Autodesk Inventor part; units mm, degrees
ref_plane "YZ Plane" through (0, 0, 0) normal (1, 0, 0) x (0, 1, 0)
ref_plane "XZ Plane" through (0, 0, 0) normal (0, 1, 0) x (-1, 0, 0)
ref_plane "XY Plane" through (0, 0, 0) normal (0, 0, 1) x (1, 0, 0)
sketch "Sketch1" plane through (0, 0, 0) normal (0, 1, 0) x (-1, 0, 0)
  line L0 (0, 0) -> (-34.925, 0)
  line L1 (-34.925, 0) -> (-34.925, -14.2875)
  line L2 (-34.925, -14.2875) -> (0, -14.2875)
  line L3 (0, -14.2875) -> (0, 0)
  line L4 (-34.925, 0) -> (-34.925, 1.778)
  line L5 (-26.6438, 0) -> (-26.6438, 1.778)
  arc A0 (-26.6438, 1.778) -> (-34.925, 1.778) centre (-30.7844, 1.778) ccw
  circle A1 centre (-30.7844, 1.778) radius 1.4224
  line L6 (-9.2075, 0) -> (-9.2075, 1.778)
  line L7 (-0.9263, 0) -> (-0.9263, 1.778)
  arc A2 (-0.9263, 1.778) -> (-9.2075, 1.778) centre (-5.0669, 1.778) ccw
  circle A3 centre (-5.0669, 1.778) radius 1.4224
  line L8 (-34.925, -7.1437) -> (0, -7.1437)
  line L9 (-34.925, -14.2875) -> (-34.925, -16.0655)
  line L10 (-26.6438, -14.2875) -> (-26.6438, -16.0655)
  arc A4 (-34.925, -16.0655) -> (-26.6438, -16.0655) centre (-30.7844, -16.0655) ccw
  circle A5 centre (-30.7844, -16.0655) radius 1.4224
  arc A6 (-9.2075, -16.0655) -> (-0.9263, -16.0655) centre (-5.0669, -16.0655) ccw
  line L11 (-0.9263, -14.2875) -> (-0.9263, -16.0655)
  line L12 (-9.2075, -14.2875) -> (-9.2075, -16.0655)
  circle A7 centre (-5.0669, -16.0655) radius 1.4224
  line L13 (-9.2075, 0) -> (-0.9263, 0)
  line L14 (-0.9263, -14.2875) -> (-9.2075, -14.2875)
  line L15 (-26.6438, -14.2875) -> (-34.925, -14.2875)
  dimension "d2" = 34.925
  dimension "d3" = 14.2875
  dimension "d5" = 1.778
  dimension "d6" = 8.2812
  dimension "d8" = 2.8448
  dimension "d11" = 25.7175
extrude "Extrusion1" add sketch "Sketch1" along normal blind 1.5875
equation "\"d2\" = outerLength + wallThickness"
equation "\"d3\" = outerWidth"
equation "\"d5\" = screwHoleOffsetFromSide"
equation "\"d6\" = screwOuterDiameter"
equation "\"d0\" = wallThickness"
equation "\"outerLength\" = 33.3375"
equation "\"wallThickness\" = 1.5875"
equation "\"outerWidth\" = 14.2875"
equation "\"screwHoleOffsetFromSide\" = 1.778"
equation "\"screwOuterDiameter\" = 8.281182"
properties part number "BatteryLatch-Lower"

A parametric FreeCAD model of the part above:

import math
import FreeCAD as App
import Part
import Sketcher
from FreeCAD import Vector
Q = App.Units.Quantity

doc = App.newDocument("Part")
body = doc.addObject("PartDesign::Body", "Body")

# Sketch on XZ plane
sketch1 = body.newObject("Sketcher::SketchObject", "Sketch")
sketch1.AttachmentSupport = (doc.getObject("XZ_Plane"), [""])
sketch1.MapMode = "FlatFace"
sketch1.addGeometry([
    Part.LineSegment(Vector(0, 0, 0), Vector(0.9263, 0, 0)),  # 0
    Part.LineSegment(Vector(0.9263, 0, 0), Vector(0.9263, 1.778, 0)),  # 1
    Part.ArcOfCircle(Part.Circle(Vector(5.0669, 1.778, 0), Vector(0, 0, 1), 4.1406), math.radians(0), math.radians(180)),  # 2
    Part.LineSegment(Vector(9.2075, 1.778, 0), Vector(9.2075, 0, 0)),  # 3
    Part.LineSegment(Vector(9.2075, 0, 0), Vector(26.6438, 0, 0)),  # 4
    Part.LineSegment(Vector(26.6438, 0, 0), Vector(26.6438, 1.778, 0)),  # 5
    Part.ArcOfCircle(Part.Circle(Vector(30.7844, 1.778, 0), Vector(0, 0, 1), 4.1406), math.radians(0), math.radians(180)),  # 6
    Part.LineSegment(Vector(34.925, 1.778, 0), Vector(34.925, -16.0655, 0)),  # 7
    Part.ArcOfCircle(Part.Circle(Vector(30.7844, -16.0655, 0), Vector(0, 0, 1), 4.1406), math.radians(180), math.radians(360)),  # 8
    Part.LineSegment(Vector(26.6438, -16.0655, 0), Vector(26.6438, -14.2875, 0)),  # 9
    Part.LineSegment(Vector(26.6438, -14.2875, 0), Vector(9.2075, -14.2875, 0)),  # 10
    Part.LineSegment(Vector(9.2075, -14.2875, 0), Vector(9.2075, -16.0655, 0)),  # 11
    Part.ArcOfCircle(Part.Circle(Vector(5.0669, -16.0655, 0), Vector(0, 0, 1), 4.1406), math.radians(180), math.radians(360)),  # 12
    Part.LineSegment(Vector(0.9263, -16.0655, 0), Vector(0.9263, -14.2875, 0)),  # 13
    Part.LineSegment(Vector(0.9263, -14.2875, 0), Vector(0, -14.2875, 0)),  # 14
    Part.LineSegment(Vector(0, -14.2875, 0), Vector(0, 0, 0)),  # 15
    Part.Circle(Vector(30.7844, 1.778, 0), Vector(0, 0, 1), 1.4224),  # 16
    Part.Circle(Vector(5.0669, 1.778, 0), Vector(0, 0, 1), 1.4224),  # 17
    Part.Circle(Vector(5.0669, -16.0655, 0), Vector(0, 0, 1), 1.4224),  # 18
    Part.Circle(Vector(30.7844, -16.0655, 0), Vector(0, 0, 1), 1.4224),  # 19
], False)
sketch1.addConstraint([
    Sketcher.Constraint("Coincident", 0, 2, 1, 1),
    Sketcher.Constraint("Tangent", 1, 2, 2, 2),
    Sketcher.Constraint("Tangent", 2, 1, 3, 1),
    Sketcher.Constraint("Coincident", 3, 2, 4, 1),
    Sketcher.Constraint("Coincident", 4, 2, 5, 1),
    Sketcher.Constraint("Tangent", 5, 2, 6, 2),
    Sketcher.Constraint("Tangent", 6, 1, 7, 1),
    Sketcher.Constraint("Tangent", 7, 2, 8, 2),
    Sketcher.Constraint("Tangent", 8, 1, 9, 1),
    Sketcher.Constraint("Coincident", 9, 2, 10, 1),
    Sketcher.Constraint("Coincident", 10, 2, 11, 1),
    Sketcher.Constraint("Tangent", 11, 2, 12, 2),
    Sketcher.Constraint("Tangent", 12, 1, 13, 1),
    Sketcher.Constraint("Coincident", 13, 2, 14, 1),
    Sketcher.Constraint("Coincident", 14, 2, 15, 1),
    Sketcher.Constraint("Coincident", 15, 2, 0, 1),
    Sketcher.Constraint("Horizontal", 0),
    Sketcher.Constraint("Vertical", 1),
    Sketcher.Constraint("Vertical", 3),
    Sketcher.Constraint("Horizontal", 4),
    Sketcher.Constraint("Vertical", 5),
    Sketcher.Constraint("Vertical", 7),
    Sketcher.Constraint("Vertical", 9),
    Sketcher.Constraint("Horizontal", 10),
    Sketcher.Constraint("Vertical", 11),
    Sketcher.Constraint("Vertical", 13),
    Sketcher.Constraint("Horizontal", 14),
    Sketcher.Constraint("Vertical", 15),
    Sketcher.Constraint("Coincident", 15, 2, -1, 1),
    Sketcher.Constraint("Coincident", 16, 3, 6, 3),
    Sketcher.Constraint("Coincident", 17, 3, 2, 3),
    Sketcher.Constraint("Coincident", 18, 3, 12, 3),
    Sketcher.Constraint("Coincident", 19, 3, 8, 3),
    Sketcher.Constraint("Equal", 2, 6),
    Sketcher.Constraint("Equal", 6, 8),
    Sketcher.Constraint("Equal", 8, 12),
    Sketcher.Constraint("Equal", 16, 17),
    Sketcher.Constraint("Equal", 17, 18),
    Sketcher.Constraint("Equal", 18, 19),
    Sketcher.Constraint("PointOnObject", 3, 2, -1),
    Sketcher.Constraint("Horizontal", 2, 3, 6, 3),
    Sketcher.Constraint("Horizontal", 8, 3, 12, 3),
    Sketcher.Constraint("Horizontal", 10, 2, 13, 2),
    Sketcher.Constraint("Vertical", 2, 3, 12, 3),
    Sketcher.Constraint("Equal", 5, 9),
    Sketcher.Constraint("Diameter", 16, Q("0.112 in")),
    Sketcher.Constraint("DistanceY", 1, 1, 1, 2, Q("0.07 in")),
    Sketcher.Constraint("DistanceY", 15, 1, 15, 2, Q("0.5625 in")),
    Sketcher.Constraint("Radius", 2, 4.1406),
    Sketcher.Constraint("DistanceX", -1, 1, 6, 1, Q("1.375 in")),
    Sketcher.Constraint("DistanceX", 2, 3, 6, 3, Q("1.0125 in")),
])
pad1 = body.newObject("PartDesign::Pad", "Pad")
pad1.Profile = sketch1
pad1.Length = Q("0.0625 in")
pad1.Reversed = True

doc.recompute()
